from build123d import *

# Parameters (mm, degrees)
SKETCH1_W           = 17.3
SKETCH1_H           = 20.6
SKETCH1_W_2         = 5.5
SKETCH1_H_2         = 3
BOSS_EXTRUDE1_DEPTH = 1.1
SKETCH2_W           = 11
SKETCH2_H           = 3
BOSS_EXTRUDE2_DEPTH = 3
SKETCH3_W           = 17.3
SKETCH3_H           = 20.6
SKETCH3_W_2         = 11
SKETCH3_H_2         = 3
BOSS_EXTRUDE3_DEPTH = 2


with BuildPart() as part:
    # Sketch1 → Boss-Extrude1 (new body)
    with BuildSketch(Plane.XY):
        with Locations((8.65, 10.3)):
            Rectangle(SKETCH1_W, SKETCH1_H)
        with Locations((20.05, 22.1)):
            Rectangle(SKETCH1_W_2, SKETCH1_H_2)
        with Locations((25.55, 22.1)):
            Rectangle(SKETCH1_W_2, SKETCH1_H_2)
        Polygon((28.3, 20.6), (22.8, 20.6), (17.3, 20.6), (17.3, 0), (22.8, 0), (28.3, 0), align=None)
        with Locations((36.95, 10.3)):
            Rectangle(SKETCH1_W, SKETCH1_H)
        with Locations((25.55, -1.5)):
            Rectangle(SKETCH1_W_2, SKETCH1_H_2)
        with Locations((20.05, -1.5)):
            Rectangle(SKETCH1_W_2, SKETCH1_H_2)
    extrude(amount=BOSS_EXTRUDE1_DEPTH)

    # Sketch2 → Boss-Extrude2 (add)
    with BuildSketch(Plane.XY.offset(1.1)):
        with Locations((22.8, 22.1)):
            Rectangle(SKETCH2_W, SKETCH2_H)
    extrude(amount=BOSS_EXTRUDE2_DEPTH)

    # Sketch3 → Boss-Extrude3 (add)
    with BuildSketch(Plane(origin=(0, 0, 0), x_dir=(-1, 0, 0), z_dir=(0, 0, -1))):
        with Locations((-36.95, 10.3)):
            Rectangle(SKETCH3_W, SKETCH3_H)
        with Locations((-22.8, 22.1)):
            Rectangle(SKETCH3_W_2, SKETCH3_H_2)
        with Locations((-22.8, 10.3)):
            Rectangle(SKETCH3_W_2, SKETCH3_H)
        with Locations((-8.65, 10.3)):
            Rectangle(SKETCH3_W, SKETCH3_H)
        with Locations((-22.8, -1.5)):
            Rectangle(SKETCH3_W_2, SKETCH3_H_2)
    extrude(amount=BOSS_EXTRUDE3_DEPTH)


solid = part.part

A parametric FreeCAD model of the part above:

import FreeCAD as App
import Part
import Sketcher
from FreeCAD import Vector

doc = App.newDocument("Part")
body = doc.addObject("PartDesign::Body", "Body")

sketch1 = doc.addObject("Sketcher::SketchObject", "Sketch")
body.addObject(sketch1)
sketch1.AttachmentSupport = (doc.XY_Plane, [""])
sketch1.MapMode = "FlatFace"
sketch1.addGeometry([
    Part.LineSegment(Vector(0, 20.6, 0), Vector(0, 0, 0)),
    Part.LineSegment(Vector(0, 0, 0), Vector(17.3, 0, 0)),
    Part.LineSegment(Vector(17.3, 0, 0), Vector(17.3, -3, 0)),
    Part.LineSegment(Vector(17.3, -3, 0), Vector(28.3, -3, 0)),
    Part.LineSegment(Vector(28.3, -3, 0), Vector(28.3, 0, 0)),
    Part.LineSegment(Vector(28.3, 0, 0), Vector(45.6, 0, 0)),
    Part.LineSegment(Vector(45.6, 0, 0), Vector(45.6, 20.6, 0)),
    Part.LineSegment(Vector(45.6, 20.6, 0), Vector(28.3, 20.6, 0)),
    Part.LineSegment(Vector(28.3, 20.6, 0), Vector(28.3, 23.6, 0)),
    Part.LineSegment(Vector(28.3, 23.6, 0), Vector(17.3, 23.6, 0)),
    Part.LineSegment(Vector(17.3, 23.6, 0), Vector(17.3, 20.6, 0)),
    Part.LineSegment(Vector(17.3, 20.6, 0), Vector(0, 20.6, 0)),
], False)
sketch1.addConstraint([
    Sketcher.Constraint("Coincident", 0, 2, 1, 1),
    Sketcher.Constraint("Coincident", 1, 2, 2, 1),
    Sketcher.Constraint("Coincident", 2, 2, 3, 1),
    Sketcher.Constraint("Coincident", 3, 2, 4, 1),
    Sketcher.Constraint("Coincident", 4, 2, 5, 1),
    Sketcher.Constraint("Coincident", 5, 2, 6, 1),
    Sketcher.Constraint("Coincident", 6, 2, 7, 1),
    Sketcher.Constraint("Coincident", 7, 2, 8, 1),
    Sketcher.Constraint("Coincident", 8, 2, 9, 1),
    Sketcher.Constraint("Coincident", 9, 2, 10, 1),
    Sketcher.Constraint("Coincident", 10, 2, 11, 1),
    Sketcher.Constraint("Coincident", 11, 2, 0, 1),
    Sketcher.Constraint("Vertical", 0),
    Sketcher.Constraint("Horizontal", 1),
    Sketcher.Constraint("Vertical", 2),
    Sketcher.Constraint("Horizontal", 3),
    Sketcher.Constraint("Vertical", 4),
    Sketcher.Constraint("Horizontal", 5),
    Sketcher.Constraint("Vertical", 6),
    Sketcher.Constraint("Horizontal", 7),
    Sketcher.Constraint("Vertical", 8),
    Sketcher.Constraint("Horizontal", 9),
    Sketcher.Constraint("Vertical", 10),
    Sketcher.Constraint("Horizontal", 11),
    Sketcher.Constraint("Coincident", 0, 2, -1, 1),
    Sketcher.Constraint("PointOnObject", 4, 2, -1),
    Sketcher.Constraint("Horizontal", 7, 2, 10, 2),
    Sketcher.Constraint("Vertical", 4, 2, 7, 2),
    Sketcher.Constraint("Vertical", 2, 2, 9, 2),
    Sketcher.Constraint("Equal", 1, 5),
    Sketcher.Constraint("Equal", 4, 8),
    Sketcher.Constraint("DistanceX", 3, 1, 3, 2, 11.0),
    Sketcher.Constraint("DistanceY", 2, 2, 2, 1, 3.0),
    Sketcher.Constraint("DistanceX", 1, 1, 1, 2, 17.3),
    Sketcher.Constraint("DistanceY", 0, 2, 0, 1, 20.6),
])
pad1 = doc.addObject("PartDesign::Pad", "Pad")
body.addObject(pad1)
pad1.Profile = sketch1
pad1.Length = 1.1

sketch2 = doc.addObject("Sketcher::SketchObject", "Sketch001")
body.addObject(sketch2)
sketch2.AttachmentSupport = (doc.XY_Plane, [""])
sketch2.MapMode = "FlatFace"
sketch2.AttachmentOffset = App.Placement(Vector(0, 0, 1.1), App.Rotation())
sketch2.addGeometry([
    Part.LineSegment(Vector(17.3, 23.6, 0), Vector(17.3, 20.6, 0)),
    Part.LineSegment(Vector(17.3, 20.6, 0), Vector(28.3, 20.6, 0)),
    Part.LineSegment(Vector(28.3, 20.6, 0), Vector(28.3, 23.6, 0)),
    Part.LineSegment(Vector(28.3, 23.6, 0), Vector(17.3, 23.6, 0)),
], False)
sketch2.addConstraint([
    Sketcher.Constraint("Coincident", 0, 2, 1, 1),
    Sketcher.Constraint("Coincident", 1, 2, 2, 1),
    Sketcher.Constraint("Coincident", 2, 2, 3, 1),
    Sketcher.Constraint("Coincident", 3, 2, 0, 1),
    Sketcher.Constraint("Vertical", 0),
    Sketcher.Constraint("Horizontal", 1),
    Sketcher.Constraint("Vertical", 2),
    Sketcher.Constraint("Horizontal", 3),
    Sketcher.Constraint("DistanceX", 1, 1, 1, 2, 11.0),
    Sketcher.Constraint("DistanceY", 0, 2, 0, 1, 3.0),
    Sketcher.Constraint("DistanceX", -1, 1, 0, 2, 17.3),
    Sketcher.Constraint("DistanceY", -1, 1, 0, 2, 20.6),
])
pad2 = doc.addObject("PartDesign::Pad", "Pad001")
body.addObject(pad2)
pad2.Profile = sketch2
pad2.Length = 3

sketch3 = doc.addObject("Sketcher::SketchObject", "Sketch002")
body.addObject(sketch3)
sketch3.AttachmentSupport = (doc.XY_Plane, [""])
sketch3.MapMode = "FlatFace"
sketch3.addGeometry([
    Part.LineSegment(Vector(45.6, 20.6, 0), Vector(45.6, 0, 0)),
    Part.LineSegment(Vector(45.6, 0, 0), Vector(28.3, 0, 0)),
    Part.LineSegment(Vector(28.3, 0, 0), Vector(28.3, -3, 0)),
    Part.LineSegment(Vector(28.3, -3, 0), Vector(17.3, -3, 0)),
    Part.LineSegment(Vector(17.3, -3, 0), Vector(17.3, 0, 0)),
    Part.LineSegment(Vector(17.3, 0, 0), Vector(0, 0, 0)),
    Part.LineSegment(Vector(0, 0, 0), Vector(0, 20.6, 0)),
    Part.LineSegment(Vector(0, 20.6, 0), Vector(17.3, 20.6, 0)),
    Part.LineSegment(Vector(17.3, 20.6, 0), Vector(17.3, 23.6, 0)),
    Part.LineSegment(Vector(17.3, 23.6, 0), Vector(28.3, 23.6, 0)),
    Part.LineSegment(Vector(28.3, 23.6, 0), Vector(28.3, 20.6, 0)),
    Part.LineSegment(Vector(28.3, 20.6, 0), Vector(45.6, 20.6, 0)),
], False)
sketch3.addConstraint([
    Sketcher.Constraint("Coincident", 0, 2, 1, 1),
    Sketcher.Constraint("Coincident", 1, 2, 2, 1),
    Sketcher.Constraint("Coincident", 2, 2, 3, 1),
    Sketcher.Constraint("Coincident", 3, 2, 4, 1),
    Sketcher.Constraint("Coincident", 4, 2, 5, 1),
    Sketcher.Constraint("Coincident", 5, 2, 6, 1),
    Sketcher.Constraint("Coincident", 6, 2, 7, 1),
    Sketcher.Constraint("Coincident", 7, 2, 8, 1),
    Sketcher.Constraint("Coincident", 8, 2, 9, 1),
    Sketcher.Constraint("Coincident", 9, 2, 10, 1),
    Sketcher.Constraint("Coincident", 10, 2, 11, 1),
    Sketcher.Constraint("Coincident", 11, 2, 0, 1),
    Sketcher.Constraint("Vertical", 0),
    Sketcher.Constraint("Horizontal", 1),
    Sketcher.Constraint("Vertical", 2),
    Sketcher.Constraint("Horizontal", 3),
    Sketcher.Constraint("Vertical", 4),
    Sketcher.Constraint("Horizontal", 5),
    Sketcher.Constraint("Vertical", 6),
    Sketcher.Constraint("Horizontal", 7),
    Sketcher.Constraint("Vertical", 8),
    Sketcher.Constraint("Horizontal", 9),
    Sketcher.Constraint("Vertical", 10),
    Sketcher.Constraint("Horizontal", 11),
    Sketcher.Constraint("Coincident", 5, 2, -1, 1),
    Sketcher.Constraint("PointOnObject", 0, 2, -1),
    Sketcher.Constraint("Horizontal", 7, 2, 10, 2),
    Sketcher.Constraint("Vertical", 4, 2, 7, 2),
    Sketcher.Constraint("Vertical", 2, 2, 9, 2),
    Sketcher.Constraint("Equal", 1, 5),
    Sketcher.Constraint("Equal", 4, 8),
    Sketcher.Constraint("DistanceX", 3, 2, 3, 1, 11.0),
    Sketcher.Constraint("DistanceY", 2, 2, 2, 1, 3.0),
    Sketcher.Constraint("DistanceX", 1, 2, 1, 1, 17.3),
    Sketcher.Constraint("DistanceY", 0, 2, 0, 1, 20.6),
])
pad3 = doc.addObject("PartDesign::Pad", "Pad002")
body.addObject(pad3)
pad3.Profile = sketch3
pad3.Length = 2
pad3.Reversed = True

doc.recompute()
